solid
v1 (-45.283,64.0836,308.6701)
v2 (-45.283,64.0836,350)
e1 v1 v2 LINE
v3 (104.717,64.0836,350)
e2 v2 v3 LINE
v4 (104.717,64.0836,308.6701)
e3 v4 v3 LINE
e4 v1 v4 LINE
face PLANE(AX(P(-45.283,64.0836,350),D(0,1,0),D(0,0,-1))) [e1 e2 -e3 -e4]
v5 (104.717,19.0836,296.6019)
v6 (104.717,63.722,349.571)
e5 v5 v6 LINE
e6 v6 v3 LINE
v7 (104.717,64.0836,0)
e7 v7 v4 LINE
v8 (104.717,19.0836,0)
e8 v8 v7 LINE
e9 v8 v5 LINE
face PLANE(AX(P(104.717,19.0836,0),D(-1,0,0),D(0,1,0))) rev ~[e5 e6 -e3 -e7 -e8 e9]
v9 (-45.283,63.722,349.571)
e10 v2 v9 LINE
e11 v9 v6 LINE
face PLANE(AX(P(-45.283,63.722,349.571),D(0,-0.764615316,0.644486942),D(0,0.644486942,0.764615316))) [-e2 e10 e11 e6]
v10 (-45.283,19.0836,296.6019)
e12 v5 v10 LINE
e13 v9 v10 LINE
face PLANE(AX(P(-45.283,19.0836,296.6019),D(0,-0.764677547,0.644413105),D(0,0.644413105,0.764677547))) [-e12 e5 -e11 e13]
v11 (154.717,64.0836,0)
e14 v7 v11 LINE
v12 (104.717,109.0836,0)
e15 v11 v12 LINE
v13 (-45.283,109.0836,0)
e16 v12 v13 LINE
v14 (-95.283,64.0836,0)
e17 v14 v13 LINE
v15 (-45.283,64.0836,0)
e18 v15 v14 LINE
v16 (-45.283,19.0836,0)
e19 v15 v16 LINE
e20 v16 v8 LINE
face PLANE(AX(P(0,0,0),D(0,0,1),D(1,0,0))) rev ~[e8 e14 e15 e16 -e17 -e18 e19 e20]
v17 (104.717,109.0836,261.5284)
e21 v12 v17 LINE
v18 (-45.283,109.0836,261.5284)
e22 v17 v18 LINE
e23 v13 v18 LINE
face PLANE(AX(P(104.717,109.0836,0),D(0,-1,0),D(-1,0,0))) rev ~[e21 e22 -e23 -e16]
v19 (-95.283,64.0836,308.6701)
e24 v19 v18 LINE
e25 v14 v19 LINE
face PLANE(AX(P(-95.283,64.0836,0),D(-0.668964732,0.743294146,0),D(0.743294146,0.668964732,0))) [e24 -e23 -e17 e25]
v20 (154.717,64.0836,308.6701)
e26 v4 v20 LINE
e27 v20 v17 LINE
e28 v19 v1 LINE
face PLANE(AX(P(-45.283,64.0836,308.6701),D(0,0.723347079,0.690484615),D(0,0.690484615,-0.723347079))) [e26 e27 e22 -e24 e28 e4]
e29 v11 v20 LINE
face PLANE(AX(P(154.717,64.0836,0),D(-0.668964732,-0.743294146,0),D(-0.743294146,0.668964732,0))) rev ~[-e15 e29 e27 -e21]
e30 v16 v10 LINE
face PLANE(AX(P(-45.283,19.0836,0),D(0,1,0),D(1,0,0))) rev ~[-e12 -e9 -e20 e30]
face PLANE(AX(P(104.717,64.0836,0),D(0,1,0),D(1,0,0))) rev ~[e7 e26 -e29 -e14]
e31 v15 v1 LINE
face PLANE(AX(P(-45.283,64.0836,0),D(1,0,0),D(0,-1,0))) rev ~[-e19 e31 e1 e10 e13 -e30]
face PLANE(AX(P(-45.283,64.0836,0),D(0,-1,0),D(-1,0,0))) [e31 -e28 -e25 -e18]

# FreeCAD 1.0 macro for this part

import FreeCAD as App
import Part
import Sketcher
from FreeCAD import Vector
Q = App.Units.Quantity

doc = App.newDocument("Part")
body = doc.addObject("PartDesign::Body", "Body")

# Sketch on XY plane
sketch1 = doc.addObject("Sketcher::SketchObject", "Sketch")
body.addObject(sketch1)
sketch1.AttachmentSupport = (doc.XY_Plane, [""])
sketch1.MapMode = "FlatFace"
sketch1.addGeometry([
    Part.LineSegment(Vector(105, 19, 0), Vector(105, 64, 0)),  # 0
    Part.LineSegment(Vector(105, 64, 0), Vector(155, 64, 0)),  # 1
    Part.LineSegment(Vector(155, 64, 0), Vector(105, 109, 0)),  # 2
    Part.LineSegment(Vector(105, 109, 0), Vector(-45, 109, 0)),  # 3
    Part.LineSegment(Vector(-45, 109, 0), Vector(-95, 64, 0)),  # 4
    Part.LineSegment(Vector(-95, 64, 0), Vector(-45, 64, 0)),  # 5
    Part.LineSegment(Vector(-45, 64, 0), Vector(-45, 19, 0)),  # 6
    Part.LineSegment(Vector(-45, 19, 0), Vector(105, 19, 0)),  # 7
], False)
sketch1.addConstraint([
    Sketcher.Constraint("Coincident", 0, 2, 1, 1),
    Sketcher.Constraint("Coincident", 1, 2, 2, 1),
    Sketcher.Constraint("Coincident", 2, 2, 3, 1),
    Sketcher.Constraint("Coincident", 3, 2, 4, 1),
    Sketcher.Constraint("Coincident", 4, 2, 5, 1),
    Sketcher.Constraint("Coincident", 5, 2, 6, 1),
    Sketcher.Constraint("Coincident", 6, 2, 7, 1),
    Sketcher.Constraint("Coincident", 7, 2, 0, 1),
    Sketcher.Constraint("Vertical", 0),
    Sketcher.Constraint("Horizontal", 1),
    Sketcher.Constraint("Horizontal", 3),
    Sketcher.Constraint("Horizontal", 5),
    Sketcher.Constraint("Vertical", 6),
    Sketcher.Constraint("Horizontal", 7),
    Sketcher.Constraint("Horizontal", 1, 2, 4, 2),
    Sketcher.Constraint("Vertical", 0, 2, 2, 2),
    Sketcher.Constraint("Vertical", 3, 2, 5, 2),
    Sketcher.Constraint("Equal", 1, 5),
    Sketcher.Constraint("DistanceX", 1, 1, 1, 2, Q("50 mm")),
    Sketcher.Constraint("DistanceX", 3, 2, 3, 1, Q("150 mm")),
    Sketcher.Constraint("DistanceY", 6, 2, 3, 2, Q("90 mm")),
    Sketcher.Constraint("DistanceY", 0, 1, 0, 2, Q("45 mm")),
    Sketcher.Constraint("DistanceX", -1, 1, 0, 2, Q("104.717 mm")),
    Sketcher.Constraint("DistanceY", -1, 1, 0, 2, Q("64.0836 mm")),
])
pad1 = doc.addObject("PartDesign::Pad", "Pad")
body.addObject(pad1)
pad1.Profile = sketch1
pad1.Length = 350

# Sketch on YZ plane
sketch2 = doc.addObject("Sketcher::SketchObject", "Sketch001")
body.addObject(sketch2)
sketch2.AttachmentSupport = (doc.YZ_Plane, [""])
sketch2.MapMode = "FlatFace"
sketch2.AttachmentOffset = App.Placement(Vector(0, 0, -45.283), App.Rotation())
sketch2.addGeometry([
    Part.LineSegment(Vector(63.7, 349.6, 0), Vector(19.1, 296.6, 0)),  # 0
    Part.LineSegment(Vector(19.1, 296.6, 0), Vector(19.1, 350, 0)),  # 1
    Part.LineSegment(Vector(19.1, 350, 0), Vector(64.1, 350, 0)),  # 2
    Part.LineSegment(Vector(64.1, 350, 0), Vector(63.7, 349.6, 0)),  # 3
    Part.LineSegment(Vector(109.1, 261.5, 0), Vector(64.1, 308.7, 0)),  # 4
    Part.LineSegment(Vector(64.1, 308.7, 0), Vector(64.1, 350, 0)),  # 5
    Part.LineSegment(Vector(64.1, 350, 0), Vector(109.1, 350, 0)),  # 6
    Part.LineSegment(Vector(109.1, 350, 0), Vector(109.1, 261.5, 0)),  # 7
], False)
sketch2.addConstraint([
    Sketcher.Constraint("Coincident", 0, 2, 1, 1),
    Sketcher.Constraint("Coincident", 1, 2, 2, 1),
    Sketcher.Constraint("Coincident", 2, 2, 3, 1),
    Sketcher.Constraint("Coincident", 3, 2, 0, 1),
    Sketcher.Constraint("Coincident", 4, 2, 5, 1),
    Sketcher.Constraint("Coincident", 5, 2, 6, 1),
    Sketcher.Constraint("Coincident", 6, 2, 7, 1),
    Sketcher.Constraint("Coincident", 7, 2, 4, 1),
    Sketcher.Constraint("Vertical", 1),
    Sketcher.Constraint("Horizontal", 2),
    Sketcher.Constraint("Vertical", 5),
    Sketcher.Constraint("Horizontal", 6),
    Sketcher.Constraint("Vertical", 7),
    Sketcher.Constraint("Coincident", 5, 2, 2, 2),
    Sketcher.Constraint("Parallel", 0, 3),
    Sketcher.Constraint("Equal", 2, 6),
    Sketcher.Constraint("DistanceX", 2, 1, 2, 2, Q("45 mm")),
    Sketcher.Constraint("DistanceY", -1, 1, 1, 2, Q("350 mm")),
    Sketcher.Constraint("DistanceY", 5, 1, 5, 2, Q("41.33 mm")),
    Sketcher.Constraint("DistanceY", 1, 1, 1, 2, Q("53.398 mm")),
    Sketcher.Constraint("Distance", 3, Q("0.561 mm")),
    Sketcher.Constraint("DistanceY", 7, 2, 7, 1, Q("88.4716 mm")),
    Sketcher.Constraint("DistanceX", -1, 1, 3, 2, Q("63.722 mm")),
])
pocket1 = doc.addObject("PartDesign::Pocket", "Pocket")
body.addObject(pocket1)
pocket1.Profile = sketch2
pocket1.Length = 1000
pocket1.Midplane = True

doc.recompute()
